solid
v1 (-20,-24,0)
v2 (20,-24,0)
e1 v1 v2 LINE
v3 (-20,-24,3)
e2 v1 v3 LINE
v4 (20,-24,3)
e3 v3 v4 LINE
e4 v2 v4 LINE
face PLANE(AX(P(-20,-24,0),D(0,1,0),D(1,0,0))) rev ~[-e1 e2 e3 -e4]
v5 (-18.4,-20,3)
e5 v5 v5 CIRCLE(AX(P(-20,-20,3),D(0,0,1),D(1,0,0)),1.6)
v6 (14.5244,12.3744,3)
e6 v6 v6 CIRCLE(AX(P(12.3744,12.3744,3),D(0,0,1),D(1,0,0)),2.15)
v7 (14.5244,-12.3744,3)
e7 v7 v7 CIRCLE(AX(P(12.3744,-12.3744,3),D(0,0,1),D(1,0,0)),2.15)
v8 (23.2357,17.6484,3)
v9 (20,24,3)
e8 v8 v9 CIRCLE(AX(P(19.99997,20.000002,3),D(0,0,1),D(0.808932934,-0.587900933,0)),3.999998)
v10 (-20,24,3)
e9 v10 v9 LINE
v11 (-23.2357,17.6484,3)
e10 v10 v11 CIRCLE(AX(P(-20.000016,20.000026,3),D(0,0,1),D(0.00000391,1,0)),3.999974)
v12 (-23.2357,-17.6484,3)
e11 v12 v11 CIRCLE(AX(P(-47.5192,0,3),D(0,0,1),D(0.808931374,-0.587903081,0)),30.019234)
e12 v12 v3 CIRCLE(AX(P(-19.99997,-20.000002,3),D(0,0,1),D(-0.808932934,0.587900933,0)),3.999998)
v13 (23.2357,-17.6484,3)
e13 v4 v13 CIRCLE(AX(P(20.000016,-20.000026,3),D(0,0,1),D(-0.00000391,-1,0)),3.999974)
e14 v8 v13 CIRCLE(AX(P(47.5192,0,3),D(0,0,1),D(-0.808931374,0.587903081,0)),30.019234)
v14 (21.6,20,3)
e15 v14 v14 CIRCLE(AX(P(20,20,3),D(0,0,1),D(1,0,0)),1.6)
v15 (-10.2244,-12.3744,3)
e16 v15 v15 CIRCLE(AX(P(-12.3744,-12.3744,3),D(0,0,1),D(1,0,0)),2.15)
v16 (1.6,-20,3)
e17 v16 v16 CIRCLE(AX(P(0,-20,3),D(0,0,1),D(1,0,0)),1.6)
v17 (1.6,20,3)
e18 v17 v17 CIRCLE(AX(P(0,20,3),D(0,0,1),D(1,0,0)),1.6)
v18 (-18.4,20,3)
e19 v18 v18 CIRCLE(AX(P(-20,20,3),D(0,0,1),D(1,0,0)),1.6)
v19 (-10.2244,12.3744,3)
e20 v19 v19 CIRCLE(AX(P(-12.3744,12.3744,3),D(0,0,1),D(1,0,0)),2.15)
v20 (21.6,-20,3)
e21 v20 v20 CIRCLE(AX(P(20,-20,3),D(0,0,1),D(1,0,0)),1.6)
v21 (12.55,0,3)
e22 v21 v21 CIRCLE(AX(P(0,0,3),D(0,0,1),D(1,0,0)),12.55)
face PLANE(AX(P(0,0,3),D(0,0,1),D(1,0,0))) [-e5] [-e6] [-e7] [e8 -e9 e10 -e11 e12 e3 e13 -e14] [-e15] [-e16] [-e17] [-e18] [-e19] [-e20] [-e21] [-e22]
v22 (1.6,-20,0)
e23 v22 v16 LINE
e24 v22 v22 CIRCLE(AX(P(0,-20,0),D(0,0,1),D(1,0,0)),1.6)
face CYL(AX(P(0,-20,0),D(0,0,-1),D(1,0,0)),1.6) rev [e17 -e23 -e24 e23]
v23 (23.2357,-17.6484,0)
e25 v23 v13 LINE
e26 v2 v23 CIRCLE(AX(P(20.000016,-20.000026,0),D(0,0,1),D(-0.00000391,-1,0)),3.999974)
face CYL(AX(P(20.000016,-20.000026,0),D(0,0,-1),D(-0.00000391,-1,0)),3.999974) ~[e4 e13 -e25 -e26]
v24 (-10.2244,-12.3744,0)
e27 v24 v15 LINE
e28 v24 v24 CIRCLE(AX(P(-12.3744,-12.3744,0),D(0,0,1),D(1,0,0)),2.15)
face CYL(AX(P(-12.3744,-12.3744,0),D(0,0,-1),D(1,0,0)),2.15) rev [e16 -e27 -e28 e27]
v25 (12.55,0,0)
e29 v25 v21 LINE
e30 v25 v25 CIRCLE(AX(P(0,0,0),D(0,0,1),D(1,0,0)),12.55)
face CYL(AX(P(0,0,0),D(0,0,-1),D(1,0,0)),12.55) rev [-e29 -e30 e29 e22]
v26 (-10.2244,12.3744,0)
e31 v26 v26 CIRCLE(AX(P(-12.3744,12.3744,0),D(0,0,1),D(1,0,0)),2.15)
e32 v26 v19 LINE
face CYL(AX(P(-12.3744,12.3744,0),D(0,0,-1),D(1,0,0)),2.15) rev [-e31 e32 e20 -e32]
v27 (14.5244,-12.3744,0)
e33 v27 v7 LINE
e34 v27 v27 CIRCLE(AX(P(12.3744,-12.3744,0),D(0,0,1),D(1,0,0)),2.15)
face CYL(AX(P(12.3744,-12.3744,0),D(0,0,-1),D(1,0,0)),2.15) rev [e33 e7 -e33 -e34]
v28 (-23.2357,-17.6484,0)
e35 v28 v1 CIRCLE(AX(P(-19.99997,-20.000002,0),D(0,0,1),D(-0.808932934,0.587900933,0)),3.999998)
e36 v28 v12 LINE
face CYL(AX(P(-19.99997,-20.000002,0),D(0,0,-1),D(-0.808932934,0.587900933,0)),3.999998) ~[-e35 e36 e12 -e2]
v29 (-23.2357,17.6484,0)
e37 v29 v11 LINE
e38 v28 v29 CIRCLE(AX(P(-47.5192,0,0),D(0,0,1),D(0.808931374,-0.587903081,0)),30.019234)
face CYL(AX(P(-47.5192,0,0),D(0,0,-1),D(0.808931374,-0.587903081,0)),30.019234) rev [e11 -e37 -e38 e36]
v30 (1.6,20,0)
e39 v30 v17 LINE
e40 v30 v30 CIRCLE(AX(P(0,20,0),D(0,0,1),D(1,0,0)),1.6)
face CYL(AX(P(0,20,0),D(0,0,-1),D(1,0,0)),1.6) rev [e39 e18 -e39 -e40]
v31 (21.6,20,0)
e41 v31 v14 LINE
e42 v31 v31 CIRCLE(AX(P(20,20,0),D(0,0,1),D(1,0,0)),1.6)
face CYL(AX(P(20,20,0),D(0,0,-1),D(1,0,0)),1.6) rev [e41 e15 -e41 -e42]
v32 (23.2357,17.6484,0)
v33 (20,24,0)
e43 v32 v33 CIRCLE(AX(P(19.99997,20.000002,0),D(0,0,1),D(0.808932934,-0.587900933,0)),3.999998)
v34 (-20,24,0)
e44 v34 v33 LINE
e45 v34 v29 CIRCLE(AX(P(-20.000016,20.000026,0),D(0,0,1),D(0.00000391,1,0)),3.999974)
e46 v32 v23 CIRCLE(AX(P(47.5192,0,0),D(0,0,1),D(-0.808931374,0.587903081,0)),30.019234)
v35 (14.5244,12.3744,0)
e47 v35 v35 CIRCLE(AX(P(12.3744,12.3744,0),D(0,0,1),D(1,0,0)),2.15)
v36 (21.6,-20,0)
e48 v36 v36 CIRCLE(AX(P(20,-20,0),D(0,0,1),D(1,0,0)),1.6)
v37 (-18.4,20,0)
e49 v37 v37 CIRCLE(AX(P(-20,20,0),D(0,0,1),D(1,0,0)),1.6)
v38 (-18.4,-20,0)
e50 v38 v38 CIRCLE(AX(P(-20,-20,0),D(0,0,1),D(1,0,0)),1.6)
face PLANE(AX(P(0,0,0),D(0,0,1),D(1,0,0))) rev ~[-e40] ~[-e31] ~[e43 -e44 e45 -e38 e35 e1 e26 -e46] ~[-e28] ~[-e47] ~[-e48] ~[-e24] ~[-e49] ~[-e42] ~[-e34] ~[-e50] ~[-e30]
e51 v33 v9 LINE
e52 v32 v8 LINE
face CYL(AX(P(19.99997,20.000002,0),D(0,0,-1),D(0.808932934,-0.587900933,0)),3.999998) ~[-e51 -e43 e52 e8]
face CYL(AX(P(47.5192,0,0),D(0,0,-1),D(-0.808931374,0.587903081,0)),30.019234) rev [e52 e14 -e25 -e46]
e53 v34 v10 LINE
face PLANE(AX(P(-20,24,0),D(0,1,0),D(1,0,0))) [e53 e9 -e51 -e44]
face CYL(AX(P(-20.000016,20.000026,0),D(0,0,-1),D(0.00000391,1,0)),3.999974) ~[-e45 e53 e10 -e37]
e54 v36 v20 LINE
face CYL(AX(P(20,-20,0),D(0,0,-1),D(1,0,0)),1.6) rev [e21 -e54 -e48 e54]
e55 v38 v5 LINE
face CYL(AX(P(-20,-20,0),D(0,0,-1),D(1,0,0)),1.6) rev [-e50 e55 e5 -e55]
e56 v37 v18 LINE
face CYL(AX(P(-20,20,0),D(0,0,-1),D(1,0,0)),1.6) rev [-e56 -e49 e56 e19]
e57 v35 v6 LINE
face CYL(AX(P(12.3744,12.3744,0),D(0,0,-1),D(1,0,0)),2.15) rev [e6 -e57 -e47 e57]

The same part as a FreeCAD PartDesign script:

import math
import FreeCAD as App
import Part
import Sketcher

V = App.Vector

doc = App.newDocument("Part")
body = doc.addObject("PartDesign::Body", "Body")

# Sketch on XY plane
sketch1 = body.newObject("Sketcher::SketchObject", "Sketch")
sketch1.AttachmentSupport = (doc.getObject("XY_Plane"), [""])
sketch1.MapMode = "FlatFace"
sketch1.addGeometry(Part.LineSegment(V(20, 24, 0), V(-20, 24, 0)), False)
sketch1.addGeometry(Part.ArcOfCircle(Part.Circle(V(-20, 20, 0), V(0, 0, 1), 4), math.radians(90), math.radians(216)), False)
sketch1.addGeometry(Part.ArcOfCircle(Part.Circle(V(-47.5, 0, 0), V(0, 0, 1), 30), math.radians(-36), math.radians(36)), False)
sketch1.addGeometry(Part.ArcOfCircle(Part.Circle(V(-20, -20, 0), V(0, 0, 1), 4), math.radians(144), math.radians(270)), False)
sketch1.addGeometry(Part.LineSegment(V(-20, -24, 0), V(20, -24, 0)), False)
sketch1.addGeometry(Part.ArcOfCircle(Part.Circle(V(20, -20, 0), V(0, 0, 1), 4), math.radians(-90), math.radians(36)), False)
sketch1.addGeometry(Part.ArcOfCircle(Part.Circle(V(47.5, 0, 0), V(0, 0, 1), 30), math.radians(144), math.radians(216)), False)
sketch1.addGeometry(Part.ArcOfCircle(Part.Circle(V(20, 20, 0), V(0, 0, 1), 4), math.radians(-36), math.radians(90)), False)
sketch1.addGeometry(Part.Circle(V(-20, -20, 0), V(0, 0, 1), 1.6), False)
sketch1.addGeometry(Part.Circle(V(-12.4, -12.4, 0), V(0, 0, 1), 2.1), False)
sketch1.addGeometry(Part.Circle(V(0, -20, 0), V(0, 0, 1), 1.6), False)
sketch1.addGeometry(Part.Circle(V(20, -20, 0), V(0, 0, 1), 1.6), False)
sketch1.addGeometry(Part.Circle(V(12.4, -12.4, 0), V(0, 0, 1), 2.1), False)
sketch1.addGeometry(Part.Circle(V(0, 0, 0), V(0, 0, 1), 12.6), False)
sketch1.addGeometry(Part.Circle(V(-12.4, 12.4, 0), V(0, 0, 1), 2.1), False)
sketch1.addGeometry(Part.Circle(V(-20, 20, 0), V(0, 0, 1), 1.6), False)
sketch1.addGeometry(Part.Circle(V(0, 20, 0), V(0, 0, 1), 1.6), False)
sketch1.addGeometry(Part.Circle(V(12.4, 12.4, 0), V(0, 0, 1), 2.1), False)
sketch1.addGeometry(Part.Circle(V(20, 20, 0), V(0, 0, 1), 1.6), False)
sketch1.addConstraint(Sketcher.Constraint("Tangent", 0, 2, 1, 1))
sketch1.addConstraint(Sketcher.Constraint("Tangent", 1, 2, 2, 2))
sketch1.addConstraint(Sketcher.Constraint("Tangent", 2, 1, 3, 1))
sketch1.addConstraint(Sketcher.Constraint("Tangent", 3, 2, 4, 1))
sketch1.addConstraint(Sketcher.Constraint("Tangent", 4, 2, 5, 1))
sketch1.addConstraint(Sketcher.Constraint("Tangent", 5, 2, 6, 2))
sketch1.addConstraint(Sketcher.Constraint("Tangent", 6, 1, 7, 1))
sketch1.addConstraint(Sketcher.Constraint("Tangent", 7, 2, 0, 1))
sketch1.addConstraint(Sketcher.Constraint("Horizontal", 0))
sketch1.addConstraint(Sketcher.Constraint("Horizontal", 4))
sketch1.addConstraint(Sketcher.Constraint("Coincident", 13, 3, -1, 1))
sketch1.addConstraint(Sketcher.Constraint("Coincident", 8, 3, 3, 3))
sketch1.addConstraint(Sketcher.Constraint("Coincident", 11, 3, 5, 3))
sketch1.addConstraint(Sketcher.Constraint("Coincident", 15, 3, 1, 3))
sketch1.addConstraint(Sketcher.Constraint("Coincident", 18, 3, 7, 3))
sketch1.addConstraint(Sketcher.Constraint("Equal", 1, 3))
sketch1.addConstraint(Sketcher.Constraint("Equal", 3, 5))
sketch1.addConstraint(Sketcher.Constraint("Equal", 2, 6))
sketch1.addConstraint(Sketcher.Constraint("Equal", 5, 7))
sketch1.addConstraint(Sketcher.Constraint("Equal", 8, 10))
sketch1.addConstraint(Sketcher.Constraint("Equal", 10, 11))
sketch1.addConstraint(Sketcher.Constraint("Equal", 9, 12))
sketch1.addConstraint(Sketcher.Constraint("Equal", 12, 14))
sketch1.addConstraint(Sketcher.Constraint("Equal", 11, 15))
sketch1.addConstraint(Sketcher.Constraint("Equal", 15, 16))
sketch1.addConstraint(Sketcher.Constraint("Equal", 14, 17))
sketch1.addConstraint(Sketcher.Constraint("Equal", 16, 18))
sketch1.addConstraint(Sketcher.Constraint("Symmetric", 1, 3, 5, 3, -1, 1))
sketch1.addConstraint(Sketcher.Constraint("Symmetric", 12, 3, 14, 3, -1, 1))
sketch1.addConstraint(Sketcher.Constraint("Symmetric", 10, 3, 16, 3, -1, 1))
sketch1.addConstraint(Sketcher.Constraint("Symmetric", 9, 3, 17, 3, -1, 1))
sketch1.addConstraint(Sketcher.Constraint("Symmetric", 2, 3, 6, 3, -2))
sketch1.addConstraint(Sketcher.Constraint("Symmetric", 9, 3, 12, 3, -2))
sketch1.addConstraint(Sketcher.Constraint("PointOnObject", 10, 3, -2))
sketch1.addConstraint(Sketcher.Constraint("Horizontal", 8, 3, 10, 3))
sketch1.addConstraint(Sketcher.Constraint("Radius", 1, 4.0))
sketch1.addConstraint(Sketcher.Constraint("Diameter", 8, 3.2))
sketch1.addConstraint(Sketcher.Constraint("Diameter", 9, 4.3))
sketch1.addConstraint(Sketcher.Constraint("Diameter", 13, 25.1))
sketch1.addConstraint(Sketcher.Constraint("DistanceX", 0, 2, 0, 1, 40.0))
sketch1.addConstraint(Sketcher.Constraint("DistanceY", 3, 3, 1, 3, 40.0))
sketch1.addConstraint(Sketcher.Constraint("Radius", 2, 30.0192))
sketch1.addConstraint(Sketcher.Constraint("DistanceY", 14, 3, 1, 2, 5.274))
sketch1.addConstraint(Sketcher.Constraint("DistanceX", 9, 3, -1, 1, 12.3744))
pad1 = body.newObject("PartDesign::Pad", "Pad")
pad1.Profile = sketch1
pad1.Length = 3

doc.recompute()
